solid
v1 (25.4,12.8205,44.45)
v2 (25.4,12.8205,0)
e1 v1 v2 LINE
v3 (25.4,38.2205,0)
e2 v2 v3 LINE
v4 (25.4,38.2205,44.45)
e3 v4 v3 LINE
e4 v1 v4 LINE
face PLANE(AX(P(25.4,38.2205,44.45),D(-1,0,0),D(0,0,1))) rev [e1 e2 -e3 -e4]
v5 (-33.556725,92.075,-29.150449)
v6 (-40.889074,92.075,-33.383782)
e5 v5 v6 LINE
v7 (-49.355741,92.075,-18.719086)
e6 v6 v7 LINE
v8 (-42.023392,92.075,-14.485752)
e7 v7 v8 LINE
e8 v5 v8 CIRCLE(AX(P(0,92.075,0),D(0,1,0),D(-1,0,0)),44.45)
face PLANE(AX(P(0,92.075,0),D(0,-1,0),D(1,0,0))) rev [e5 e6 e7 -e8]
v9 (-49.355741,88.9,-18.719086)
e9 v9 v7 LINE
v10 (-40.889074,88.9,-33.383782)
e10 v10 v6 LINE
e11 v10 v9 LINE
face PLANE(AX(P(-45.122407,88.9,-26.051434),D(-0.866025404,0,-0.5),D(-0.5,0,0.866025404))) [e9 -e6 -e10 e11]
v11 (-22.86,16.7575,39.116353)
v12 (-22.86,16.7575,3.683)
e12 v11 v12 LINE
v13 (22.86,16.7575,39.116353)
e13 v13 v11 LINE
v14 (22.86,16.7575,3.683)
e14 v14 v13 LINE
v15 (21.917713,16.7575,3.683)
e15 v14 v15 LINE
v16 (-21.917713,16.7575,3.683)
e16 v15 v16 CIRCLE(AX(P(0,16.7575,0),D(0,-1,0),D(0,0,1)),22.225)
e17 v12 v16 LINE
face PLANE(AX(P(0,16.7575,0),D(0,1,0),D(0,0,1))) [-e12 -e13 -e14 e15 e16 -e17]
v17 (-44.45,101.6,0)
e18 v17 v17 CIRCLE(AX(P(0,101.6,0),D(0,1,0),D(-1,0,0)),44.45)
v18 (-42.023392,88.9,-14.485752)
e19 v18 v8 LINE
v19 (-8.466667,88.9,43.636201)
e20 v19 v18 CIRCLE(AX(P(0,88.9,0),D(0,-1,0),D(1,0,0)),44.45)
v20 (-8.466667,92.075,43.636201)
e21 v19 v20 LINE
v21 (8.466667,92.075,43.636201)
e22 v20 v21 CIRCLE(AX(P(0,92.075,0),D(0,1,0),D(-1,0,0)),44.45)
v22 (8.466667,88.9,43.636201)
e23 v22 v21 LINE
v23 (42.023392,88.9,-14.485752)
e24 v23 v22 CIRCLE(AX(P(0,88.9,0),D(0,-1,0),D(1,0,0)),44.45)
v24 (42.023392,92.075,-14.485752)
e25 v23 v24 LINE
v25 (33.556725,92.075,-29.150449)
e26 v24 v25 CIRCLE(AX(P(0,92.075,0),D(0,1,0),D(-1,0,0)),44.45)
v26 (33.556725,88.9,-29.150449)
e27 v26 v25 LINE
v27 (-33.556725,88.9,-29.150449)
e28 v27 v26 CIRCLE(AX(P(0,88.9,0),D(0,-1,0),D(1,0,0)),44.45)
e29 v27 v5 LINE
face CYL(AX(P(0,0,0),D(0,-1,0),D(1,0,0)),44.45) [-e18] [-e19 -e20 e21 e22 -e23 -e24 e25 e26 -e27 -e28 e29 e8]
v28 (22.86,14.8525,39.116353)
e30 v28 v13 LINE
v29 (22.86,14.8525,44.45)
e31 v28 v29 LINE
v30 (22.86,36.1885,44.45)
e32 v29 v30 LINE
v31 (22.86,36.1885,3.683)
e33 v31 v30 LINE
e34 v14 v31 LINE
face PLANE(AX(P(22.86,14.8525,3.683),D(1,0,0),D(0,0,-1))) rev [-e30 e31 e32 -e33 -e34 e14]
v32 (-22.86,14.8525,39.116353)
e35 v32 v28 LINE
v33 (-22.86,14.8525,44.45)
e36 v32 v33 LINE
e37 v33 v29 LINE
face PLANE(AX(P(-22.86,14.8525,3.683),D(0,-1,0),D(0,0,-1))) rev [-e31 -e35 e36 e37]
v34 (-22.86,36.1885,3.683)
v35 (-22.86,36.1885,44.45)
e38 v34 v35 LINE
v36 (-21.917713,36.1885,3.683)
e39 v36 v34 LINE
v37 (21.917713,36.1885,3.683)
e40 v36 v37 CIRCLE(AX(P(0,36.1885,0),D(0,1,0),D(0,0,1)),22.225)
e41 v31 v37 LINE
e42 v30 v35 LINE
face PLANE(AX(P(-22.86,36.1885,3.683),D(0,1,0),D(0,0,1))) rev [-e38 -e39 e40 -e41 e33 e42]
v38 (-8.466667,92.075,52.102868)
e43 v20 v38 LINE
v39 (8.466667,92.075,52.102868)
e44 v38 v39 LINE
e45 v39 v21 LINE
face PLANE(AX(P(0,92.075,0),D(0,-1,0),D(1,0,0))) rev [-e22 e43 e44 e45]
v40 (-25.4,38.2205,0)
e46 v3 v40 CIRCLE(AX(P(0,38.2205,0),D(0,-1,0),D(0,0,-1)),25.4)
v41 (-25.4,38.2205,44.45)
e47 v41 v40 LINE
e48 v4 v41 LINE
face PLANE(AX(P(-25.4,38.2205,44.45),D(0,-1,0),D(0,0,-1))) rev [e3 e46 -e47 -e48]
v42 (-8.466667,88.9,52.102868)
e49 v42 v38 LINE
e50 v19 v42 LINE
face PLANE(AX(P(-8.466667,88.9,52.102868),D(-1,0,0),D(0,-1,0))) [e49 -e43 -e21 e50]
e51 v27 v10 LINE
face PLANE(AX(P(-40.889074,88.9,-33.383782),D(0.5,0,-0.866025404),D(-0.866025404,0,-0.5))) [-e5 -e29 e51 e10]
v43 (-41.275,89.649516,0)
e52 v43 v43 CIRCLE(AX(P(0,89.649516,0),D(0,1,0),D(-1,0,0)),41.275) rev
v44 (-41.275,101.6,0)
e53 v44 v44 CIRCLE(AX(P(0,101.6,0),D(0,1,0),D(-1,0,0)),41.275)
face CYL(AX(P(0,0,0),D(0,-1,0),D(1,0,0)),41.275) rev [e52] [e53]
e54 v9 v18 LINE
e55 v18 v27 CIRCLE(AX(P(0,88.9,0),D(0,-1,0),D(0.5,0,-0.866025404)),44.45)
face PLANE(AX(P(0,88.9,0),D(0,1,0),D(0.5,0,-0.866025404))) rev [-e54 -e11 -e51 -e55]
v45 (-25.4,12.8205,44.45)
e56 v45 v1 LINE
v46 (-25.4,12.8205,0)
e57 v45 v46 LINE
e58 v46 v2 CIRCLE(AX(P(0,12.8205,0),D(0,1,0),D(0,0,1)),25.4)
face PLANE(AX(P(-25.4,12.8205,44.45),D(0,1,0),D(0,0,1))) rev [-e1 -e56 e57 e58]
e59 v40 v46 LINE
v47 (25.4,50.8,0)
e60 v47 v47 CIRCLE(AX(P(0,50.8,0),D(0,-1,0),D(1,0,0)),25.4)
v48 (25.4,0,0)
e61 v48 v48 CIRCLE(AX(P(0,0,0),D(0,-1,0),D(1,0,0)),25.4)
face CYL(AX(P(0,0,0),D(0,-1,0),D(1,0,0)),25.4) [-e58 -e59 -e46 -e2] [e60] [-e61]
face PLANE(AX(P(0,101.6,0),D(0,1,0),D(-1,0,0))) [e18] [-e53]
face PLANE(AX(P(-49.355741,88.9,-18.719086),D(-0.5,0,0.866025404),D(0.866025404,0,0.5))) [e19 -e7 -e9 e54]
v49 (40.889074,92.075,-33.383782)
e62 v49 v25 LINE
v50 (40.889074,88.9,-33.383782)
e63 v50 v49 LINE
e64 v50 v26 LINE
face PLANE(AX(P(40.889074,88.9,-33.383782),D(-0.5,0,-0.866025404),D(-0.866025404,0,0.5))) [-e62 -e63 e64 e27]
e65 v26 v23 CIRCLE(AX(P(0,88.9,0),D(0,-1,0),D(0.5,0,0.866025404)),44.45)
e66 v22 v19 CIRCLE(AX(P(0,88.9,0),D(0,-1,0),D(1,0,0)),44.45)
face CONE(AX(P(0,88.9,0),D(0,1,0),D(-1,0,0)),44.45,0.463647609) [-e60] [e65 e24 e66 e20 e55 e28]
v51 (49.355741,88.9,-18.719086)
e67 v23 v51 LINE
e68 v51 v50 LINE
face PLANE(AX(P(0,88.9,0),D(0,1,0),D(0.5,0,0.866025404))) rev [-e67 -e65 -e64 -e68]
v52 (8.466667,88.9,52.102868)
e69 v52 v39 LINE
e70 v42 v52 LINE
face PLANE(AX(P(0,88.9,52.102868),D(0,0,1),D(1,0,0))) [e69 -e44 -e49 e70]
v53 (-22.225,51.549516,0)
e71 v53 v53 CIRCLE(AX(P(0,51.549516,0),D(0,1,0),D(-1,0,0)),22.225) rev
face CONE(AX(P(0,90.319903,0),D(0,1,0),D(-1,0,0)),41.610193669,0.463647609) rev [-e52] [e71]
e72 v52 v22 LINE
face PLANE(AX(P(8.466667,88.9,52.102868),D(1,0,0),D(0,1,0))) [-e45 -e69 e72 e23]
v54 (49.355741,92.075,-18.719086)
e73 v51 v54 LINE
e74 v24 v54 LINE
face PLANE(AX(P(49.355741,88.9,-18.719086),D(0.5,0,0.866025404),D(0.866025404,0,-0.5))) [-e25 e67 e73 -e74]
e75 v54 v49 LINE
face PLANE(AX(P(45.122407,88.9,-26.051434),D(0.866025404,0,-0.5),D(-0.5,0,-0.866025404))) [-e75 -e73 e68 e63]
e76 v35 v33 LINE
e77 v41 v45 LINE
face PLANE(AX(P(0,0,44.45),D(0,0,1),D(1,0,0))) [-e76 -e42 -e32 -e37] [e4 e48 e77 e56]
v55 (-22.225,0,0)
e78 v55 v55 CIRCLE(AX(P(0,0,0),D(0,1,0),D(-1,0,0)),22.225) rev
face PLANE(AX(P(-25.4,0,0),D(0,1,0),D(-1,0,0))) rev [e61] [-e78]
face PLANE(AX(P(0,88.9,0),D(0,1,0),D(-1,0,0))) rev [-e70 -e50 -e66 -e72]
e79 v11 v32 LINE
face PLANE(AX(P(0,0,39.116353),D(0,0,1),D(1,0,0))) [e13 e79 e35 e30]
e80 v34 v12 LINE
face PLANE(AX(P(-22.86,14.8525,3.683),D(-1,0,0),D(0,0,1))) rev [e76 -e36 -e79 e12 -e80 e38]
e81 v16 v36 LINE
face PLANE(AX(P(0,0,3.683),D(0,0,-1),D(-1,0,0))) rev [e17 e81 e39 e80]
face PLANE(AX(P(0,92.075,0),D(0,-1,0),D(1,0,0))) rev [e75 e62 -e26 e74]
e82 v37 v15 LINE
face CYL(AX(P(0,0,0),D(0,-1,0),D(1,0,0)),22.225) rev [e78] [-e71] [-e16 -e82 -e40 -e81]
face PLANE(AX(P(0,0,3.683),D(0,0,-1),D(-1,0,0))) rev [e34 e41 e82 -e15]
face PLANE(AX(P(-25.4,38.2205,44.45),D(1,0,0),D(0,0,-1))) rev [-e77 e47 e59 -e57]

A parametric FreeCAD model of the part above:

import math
import FreeCAD as App
import Part
import Sketcher
Q = App.Units.Quantity


def faces_at(feature, points):
    """Names of the faces that lie closest to the given points."""
    faces = feature.Shape.Faces
    near = lambda p: min(range(len(faces)), key=lambda i: faces[i].distToShape(Part.Vertex(*p))[0])
    return sorted({f"Face{near(p) + 1}" for p in points})

doc = App.newDocument("Part")
params = doc.addObject("Spreadsheet::Sheet", "Params")
for row, (alias, value) in enumerate([
    ("sketch1_width", "1 in"),
    ("sketch1_height", "2 in"),
    ("sketch1_width2", "1.75 in"),
    ("sketch1_height2", "0.125 in"),
    ("revolution_angle", "360 deg"),
    ("thickness_wall", "0.125 in"),
    ("sketch2_radius", "1.75 in"),
    ("pad1_length", "0.125 in"),
    ("sketch3_width", "2 in"),
    ("sketch3_height", "1 in"),
    ("pad2_length", "1.75 in"),
    ("sketch4_diameter", "1.75 in"),
    ("sketch5_width", "1.8 in"),
    ("sketch5_height", "0.84 in"),
    ("pocket2_length", "1.605 in"),
    ("sketch6_width", "1.8 in"),
    ("sketch6_radius", "0.875 in"),
    ("sketch6_length", "0.145 in"),
    ("pad3_length", "0.075 in"),
    ("sketch7_width", "1.8 in"),
    ("sketch7_height", "0.075 in"),
    ("pad4_length", "0.64 in"),
    ("sketch8_diameter", "3.5 in"),
    ("sketch8_diameter2", "3.25 in"),
    ("pad5_length", "0.375 in"),
], start=1):
    params.set(f"A{row}", alias)
    params.set(f"B{row}", "=" + value)
    params.setAlias(f"B{row}", alias)

body = doc.addObject("PartDesign::Body", "Body")

# Sketch on XY plane
sketch1 = body.newObject("Sketcher::SketchObject", "Sketch")
sketch1.AttachmentSupport = (doc.getObject("XY_Plane"), [""])
sketch1.MapMode = "FlatFace"
sketch1.addGeometry([
    Part.LineSegment(App.Vector(0, 92.075, 0), App.Vector(-44.45, 92.075, 0)),  # 0
    Part.LineSegment(App.Vector(-44.45, 92.075, 0), App.Vector(-44.45, 88.9, 0)),  # 1
    Part.LineSegment(App.Vector(-44.45, 88.9, 0), App.Vector(-25.4, 50.8, 0)),  # 2
    Part.LineSegment(App.Vector(-25.4, 50.8, 0), App.Vector(-25.4, 0, 0)),  # 3
    Part.LineSegment(App.Vector(-25.4, 0, 0), App.Vector(0, 0, 0)),  # 4
    Part.LineSegment(App.Vector(0, 0, 0), App.Vector(0, 92.075, 0)),  # 5
], False)
sketch1.addConstraint([
    Sketcher.Constraint("Coincident", 0, 2, 1, 1),
    Sketcher.Constraint("Coincident", 1, 2, 2, 1),
    Sketcher.Constraint("Coincident", 2, 2, 3, 1),
    Sketcher.Constraint("Coincident", 3, 2, 4, 1),
    Sketcher.Constraint("Coincident", 4, 2, 5, 1),
    Sketcher.Constraint("Coincident", 5, 2, 0, 1),
    Sketcher.Constraint("Horizontal", 0),
    Sketcher.Constraint("Vertical", 1),
    Sketcher.Constraint("Vertical", 3),
    Sketcher.Constraint("Horizontal", 4),
    Sketcher.Constraint("Vertical", 5),
    Sketcher.Constraint("Coincident", 4, 2, -1, 1),
    Sketcher.Constraint("DistanceX", 4, 1, 4, 2, Q("1 in")),
    Sketcher.Constraint("DistanceY", 3, 2, 3, 1, Q("2 in")),
    Sketcher.Constraint("DistanceX", 0, 2, 0, 1, Q("1.75 in")),
    Sketcher.Constraint("DistanceY", -1, 1, 1, 2, Q("3.5 in")),
    Sketcher.Constraint("DistanceY", 1, 2, 1, 1, Q("0.125 in")),
])
sketch1.setExpression("Constraints[12]", "Params.sketch1_width")
sketch1.setExpression("Constraints[13]", "Params.sketch1_height")
sketch1.setExpression("Constraints[14]", "Params.sketch1_width2")
sketch1.setExpression("Constraints[16]", "Params.sketch1_height2")
revolution = body.newObject("PartDesign::Revolution", "Revolution")
revolution.Profile = sketch1
revolution.ReferenceAxis = (sketch1, ["V_Axis"])
revolution.setExpression("Angle", "Params.revolution_angle")
doc.recompute()

thickness = body.newObject("PartDesign::Thickness", "Thickness")
thickness.Base = (revolution, faces_at(revolution, [(0, 0, 0), (0, 92.075, 0)]))
thickness.setExpression("Value", "Params.thickness_wall")
thickness.Reversed = True
thickness.Join = "Intersection"

# Sketch on XZ plane
sketch2 = body.newObject("Sketcher::SketchObject", "Sketch001")
sketch2.AttachmentSupport = (doc.getObject("XZ_Plane"), [""])
sketch2.MapMode = "FlatFace"
sketch2.AttachmentOffset = App.Placement(App.Vector(0, 0, -3.5 * 25.4), App.Rotation())
sketch2.addGeometry([
    Part.LineSegment(App.Vector(-8.466667, 43.636201, 0), App.Vector(-8.466667, 52.102868, 0)),
    Part.LineSegment(App.Vector(-8.466667, 52.102868, 0), App.Vector(8.466667, 52.102868, 0)),
    Part.LineSegment(App.Vector(8.466667, 52.102868, 0), App.Vector(8.466667, 43.636201, 0)),
    Part.ArcOfCircle(Part.Circle(App.Vector(0, 0, 0), App.Vector(0, 0, 1), 44.45), math.radians(79.019425), math.radians(100.980575)),
], False)
sketch2.addConstraint([
    Sketcher.Constraint("Coincident", 0, 2, 1, 1),
    Sketcher.Constraint("Coincident", 1, 2, 2, 1),
    Sketcher.Constraint("Coincident", 2, 2, 3, 1),
    Sketcher.Constraint("Coincident", 3, 2, 0, 1),
    Sketcher.Constraint("Vertical", 0),
    Sketcher.Constraint("Horizontal", 1),
    Sketcher.Constraint("Vertical", 2),
    Sketcher.Constraint("Coincident", 3, 3, -1, 1),
    Sketcher.Constraint("Horizontal", 2, 2, 3, 2),
    Sketcher.Constraint("Radius", 3, Q("1.75 in")),
    Sketcher.Constraint("DistanceY", -1, 1, 2, 2, 43.636201),
    Sketcher.Constraint("DistanceY", 0, 1, 0, 2, 8.466667),
])
sketch2.setExpression("Constraints[9]", "Params.sketch2_radius")
pad1 = body.newObject("PartDesign::Pad", "Pad")
pad1.Profile = sketch2
pad1.setExpression("Length", "Params.pad1_length")
pad1.Reversed = True
doc.recompute()

polarpattern = body.newObject("PartDesign::PolarPattern", "PolarPattern")
polarpattern.Originals = [pad1]
polarpattern.Axis = (doc.getObject("Y_Axis"), [""])
polarpattern.Angle = 360
polarpattern.Occurrences = 3
body.Tip = polarpattern

# Sketch on XY plane
sketch3 = body.newObject("Sketcher::SketchObject", "Sketch002")
sketch3.AttachmentSupport = (doc.getObject("XY_Plane"), [""])
sketch3.MapMode = "FlatFace"
sketch3.addGeometry([
    Part.LineSegment(App.Vector(-25.4, 38.2205, 0), App.Vector(-25.4, 12.8205, 0)),
    Part.LineSegment(App.Vector(-25.4, 12.8205, 0), App.Vector(25.4, 12.8205, 0)),
    Part.LineSegment(App.Vector(25.4, 12.8205, 0), App.Vector(25.4, 38.2205, 0)),
    Part.LineSegment(App.Vector(25.4, 38.2205, 0), App.Vector(-25.4, 38.2205, 0)),
], False)
sketch3.addConstraint([
    Sketcher.Constraint("Coincident", 0, 2, 1, 1),
    Sketcher.Constraint("Coincident", 1, 2, 2, 1),
    Sketcher.Constraint("Coincident", 2, 2, 3, 1),
    Sketcher.Constraint("Coincident", 3, 2, 0, 1),
    Sketcher.Constraint("Vertical", 0),
    Sketcher.Constraint("Horizontal", 1),
    Sketcher.Constraint("Vertical", 2),
    Sketcher.Constraint("Horizontal", 3),
    Sketcher.Constraint("DistanceX", 1, 1, 1, 2, Q("2 in")),
    Sketcher.Constraint("DistanceY", 0, 2, 0, 1, Q("1 in")),
    Sketcher.Constraint("DistanceX", 0, 2, -1, 1, Q("1 in")),
    Sketcher.Constraint("DistanceY", -1, 1, 0, 2, 12.8205),
])
sketch3.setExpression("Constraints[8]", "Params.sketch3_width")
sketch3.setExpression("Constraints[9]", "Params.sketch3_height")
pad2 = body.newObject("PartDesign::Pad", "Pad001")
pad2.Profile = sketch3
pad2.setExpression("Length", "Params.pad2_length")

# Sketch on XZ plane
sketch4 = body.newObject("Sketcher::SketchObject", "Sketch003")
sketch4.AttachmentSupport = (doc.getObject("XZ_Plane"), [""])
sketch4.MapMode = "FlatFace"
sketch4.AttachmentOffset = App.Placement(App.Vector(0, 0, -38.2205), App.Rotation())
sketch4.addGeometry(Part.Circle(App.Vector(0, 0, 0), App.Vector(0, 0, 1), 22.225), False)
sketch4.addConstraint([
    Sketcher.Constraint("Coincident", 0, 3, -1, 1),
    Sketcher.Constraint("Diameter", 0, Q("1.75 in")),
])
sketch4.setExpression("Constraints[1]", "Params.sketch4_diameter")
pocket1 = body.newObject("PartDesign::Pocket", "Pocket")
pocket1.Profile = sketch4
pocket1.Type = "ThroughAll"
pocket1.Midplane = True

# Sketch on XY plane
sketch5 = body.newObject("Sketcher::SketchObject", "Sketch004")
sketch5.AttachmentSupport = (doc.getObject("XY_Plane"), [""])
sketch5.MapMode = "FlatFace"
sketch5.AttachmentOffset = App.Placement(App.Vector(0, 0, 1.75 * 25.4), App.Rotation())
sketch5.addGeometry([
    Part.LineSegment(App.Vector(-22.86, 36.1885, 0), App.Vector(-22.86, 14.8525, 0)),
    Part.LineSegment(App.Vector(-22.86, 14.8525, 0), App.Vector(22.86, 14.8525, 0)),
    Part.LineSegment(App.Vector(22.86, 14.8525, 0), App.Vector(22.86, 36.1885, 0)),
    Part.LineSegment(App.Vector(22.86, 36.1885, 0), App.Vector(-22.86, 36.1885, 0)),
], False)
sketch5.addConstraint([
    Sketcher.Constraint("Coincident", 0, 2, 1, 1),
    Sketcher.Constraint("Coincident", 1, 2, 2, 1),
    Sketcher.Constraint("Coincident", 2, 2, 3, 1),
    Sketcher.Constraint("Coincident", 3, 2, 0, 1),
    Sketcher.Constraint("Vertical", 0),
    Sketcher.Constraint("Horizontal", 1),
    Sketcher.Constraint("Vertical", 2),
    Sketcher.Constraint("Horizontal", 3),
    Sketcher.Constraint("DistanceX", 1, 1, 1, 2, Q("1.8 in")),
    Sketcher.Constraint("DistanceY", 0, 2, 0, 1, Q("0.84 in")),
    Sketcher.Constraint("DistanceX", 0, 2, -1, 1, Q("0.9 in")),
    Sketcher.Constraint("DistanceY", -1, 1, 0, 2, 14.8525),
])
sketch5.setExpression("Constraints[8]", "Params.sketch5_width")
sketch5.setExpression("Constraints[9]", "Params.sketch5_height")
pocket2 = body.newObject("PartDesign::Pocket", "Pocket001")
pocket2.Profile = sketch5
pocket2.setExpression("Length", "Params.pocket2_length")

# Sketch on XZ plane
sketch6 = body.newObject("Sketcher::SketchObject", "Sketch005")
sketch6.AttachmentSupport = (doc.getObject("XZ_Plane"), [""])
sketch6.MapMode = "FlatFace"
sketch6.AttachmentOffset = App.Placement(App.Vector(0, 0, -14.8525), App.Rotation())
sketch6.addGeometry([
    Part.LineSegment(App.Vector(-22.86, 22.860353, 0), App.Vector(22.86, 22.860353, 0)),  # 0
    Part.LineSegment(App.Vector(22.86, 22.860353, 0), App.Vector(22.860353, 0, 0)),  # 1
    Part.LineSegment(App.Vector(22.860353, 0, 0), App.Vector(22.86, 3.683, 0)),  # 2
    Part.LineSegment(App.Vector(22.86, 3.683, 0), App.Vector(21.917713, 3.683, 0)),  # 3
    Part.ArcOfCircle(Part.Circle(App.Vector(0, 0, 0), App.Vector(0, 0, 1), 22.225), math.radians(9.538731), math.radians(180)),  # 4
    Part.LineSegment(App.Vector(-22.225, 0, 0), App.Vector(-22.860353, 0, 0)),  # 5
    Part.LineSegment(App.Vector(-22.860353, 0, 0), App.Vector(-22.86, 22.860353, 0)),  # 6
], False)
sketch6.addConstraint([
    Sketcher.Constraint("Coincident", 0, 2, 1, 1),
    Sketcher.Constraint("Coincident", 1, 2, 2, 1),
    Sketcher.Constraint("Coincident", 2, 2, 3, 1),
    Sketcher.Constraint("Coincident", 3, 2, 4, 1),
    Sketcher.Constraint("Coincident", 4, 2, 5, 1),
    Sketcher.Constraint("Coincident", 5, 2, 6, 1),
    Sketcher.Constraint("Coincident", 6, 2, 0, 1),
    Sketcher.Constraint("Horizontal", 0),
    Sketcher.Constraint("Horizontal", 3),
    Sketcher.Constraint("Horizontal", 5),
    Sketcher.Constraint("Coincident", 4, 3, -1, 1),
    Sketcher.Constraint("Symmetric", 1, 2, 5, 2, -1, 1),
    Sketcher.Constraint("PointOnObject", 1, 2, -1),
    Sketcher.Constraint("Vertical", 0, 2, 2, 2),
    Sketcher.Constraint("DistanceX", 0, 1, 0, 2, Q("1.8 in")),
    Sketcher.Constraint("Radius", 4, Q("0.875 in")),
    Sketcher.Constraint("DistanceX", -1, 1, 0, 2, Q("0.9 in")),
    Sketcher.Constraint("Distance", 2, Q("0.145 in")),
    Sketcher.Constraint("DistanceX", 5, 2, 5, 1, 0.635353),
    Sketcher.Constraint("Distance", 1, 22.860353),
])
sketch6.setExpression("Constraints[14]", "Params.sketch6_width")
sketch6.setExpression("Constraints[15]", "Params.sketch6_radius")
sketch6.setExpression("Constraints[17]", "Params.sketch6_length")
pad3 = body.newObject("PartDesign::Pad", "Pad002")
pad3.Profile = sketch6
pad3.setExpression("Length", "Params.pad3_length")
pad3.Reversed = True

# Sketch on XY plane
sketch7 = body.newObject("Sketcher::SketchObject", "Sketch006")
sketch7.AttachmentSupport = (doc.getObject("XY_Plane"), [""])
sketch7.MapMode = "FlatFace"
sketch7.AttachmentOffset = App.Placement(App.Vector(0, 0, 22.860353), App.Rotation())
sketch7.addGeometry([
    Part.LineSegment(App.Vector(-22.86, 16.7575, 0), App.Vector(-22.86, 14.8525, 0)),
    Part.LineSegment(App.Vector(-22.86, 14.8525, 0), App.Vector(22.86, 14.8525, 0)),
    Part.LineSegment(App.Vector(22.86, 14.8525, 0), App.Vector(22.86, 16.7575, 0)),
    Part.LineSegment(App.Vector(22.86, 16.7575, 0), App.Vector(-22.86, 16.7575, 0)),
], False)
sketch7.addConstraint([
    Sketcher.Constraint("Coincident", 0, 2, 1, 1),
    Sketcher.Constraint("Coincident", 1, 2, 2, 1),
    Sketcher.Constraint("Coincident", 2, 2, 3, 1),
    Sketcher.Constraint("Coincident", 3, 2, 0, 1),
    Sketcher.Constraint("Vertical", 0),
    Sketcher.Constraint("Horizontal", 1),
    Sketcher.Constraint("Vertical", 2),
    Sketcher.Constraint("Horizontal", 3),
    Sketcher.Constraint("DistanceX", 1, 1, 1, 2, Q("1.8 in")),
    Sketcher.Constraint("DistanceX", 0, 2, -1, 1, Q("0.9 in")),
    Sketcher.Constraint("DistanceY", 0, 2, 0, 1, Q("0.075 in")),
    Sketcher.Constraint("DistanceY", -1, 1, 0, 2, 14.8525),
])
sketch7.setExpression("Constraints[8]", "Params.sketch7_width")
sketch7.setExpression("Constraints[10]", "Params.sketch7_height")
pad4 = body.newObject("PartDesign::Pad", "Pad003")
pad4.Profile = sketch7
pad4.setExpression("Length", "Params.pad4_length")

# Sketch on XZ plane
sketch8 = body.newObject("Sketcher::SketchObject", "Sketch007")
sketch8.AttachmentSupport = (doc.getObject("XZ_Plane"), [""])
sketch8.MapMode = "FlatFace"
sketch8.AttachmentOffset = App.Placement(App.Vector(0, 0, -3.625 * 25.4), App.Rotation())
sketch8.addGeometry([
    Part.Circle(App.Vector(0, 0, 0), App.Vector(0, 0, 1), 44.45),
    Part.Circle(App.Vector(0, 0, 0), App.Vector(0, 0, 1), 41.275),
], False)
sketch8.addConstraint([
    Sketcher.Constraint("Coincident", 0, 3, -1, 1),
    Sketcher.Constraint("Coincident", 1, 3, -1, 1),
    Sketcher.Constraint("Diameter", 0, Q("3.5 in")),
    Sketcher.Constraint("Diameter", 1, Q("3.25 in")),
])
sketch8.setExpression("Constraints[2]", "Params.sketch8_diameter")
sketch8.setExpression("Constraints[3]", "Params.sketch8_diameter2")
pad5 = body.newObject("PartDesign::Pad", "Pad004")
pad5.Profile = sketch8
pad5.setExpression("Length", "Params.pad5_length")
pad5.Reversed = True

doc.recompute()
